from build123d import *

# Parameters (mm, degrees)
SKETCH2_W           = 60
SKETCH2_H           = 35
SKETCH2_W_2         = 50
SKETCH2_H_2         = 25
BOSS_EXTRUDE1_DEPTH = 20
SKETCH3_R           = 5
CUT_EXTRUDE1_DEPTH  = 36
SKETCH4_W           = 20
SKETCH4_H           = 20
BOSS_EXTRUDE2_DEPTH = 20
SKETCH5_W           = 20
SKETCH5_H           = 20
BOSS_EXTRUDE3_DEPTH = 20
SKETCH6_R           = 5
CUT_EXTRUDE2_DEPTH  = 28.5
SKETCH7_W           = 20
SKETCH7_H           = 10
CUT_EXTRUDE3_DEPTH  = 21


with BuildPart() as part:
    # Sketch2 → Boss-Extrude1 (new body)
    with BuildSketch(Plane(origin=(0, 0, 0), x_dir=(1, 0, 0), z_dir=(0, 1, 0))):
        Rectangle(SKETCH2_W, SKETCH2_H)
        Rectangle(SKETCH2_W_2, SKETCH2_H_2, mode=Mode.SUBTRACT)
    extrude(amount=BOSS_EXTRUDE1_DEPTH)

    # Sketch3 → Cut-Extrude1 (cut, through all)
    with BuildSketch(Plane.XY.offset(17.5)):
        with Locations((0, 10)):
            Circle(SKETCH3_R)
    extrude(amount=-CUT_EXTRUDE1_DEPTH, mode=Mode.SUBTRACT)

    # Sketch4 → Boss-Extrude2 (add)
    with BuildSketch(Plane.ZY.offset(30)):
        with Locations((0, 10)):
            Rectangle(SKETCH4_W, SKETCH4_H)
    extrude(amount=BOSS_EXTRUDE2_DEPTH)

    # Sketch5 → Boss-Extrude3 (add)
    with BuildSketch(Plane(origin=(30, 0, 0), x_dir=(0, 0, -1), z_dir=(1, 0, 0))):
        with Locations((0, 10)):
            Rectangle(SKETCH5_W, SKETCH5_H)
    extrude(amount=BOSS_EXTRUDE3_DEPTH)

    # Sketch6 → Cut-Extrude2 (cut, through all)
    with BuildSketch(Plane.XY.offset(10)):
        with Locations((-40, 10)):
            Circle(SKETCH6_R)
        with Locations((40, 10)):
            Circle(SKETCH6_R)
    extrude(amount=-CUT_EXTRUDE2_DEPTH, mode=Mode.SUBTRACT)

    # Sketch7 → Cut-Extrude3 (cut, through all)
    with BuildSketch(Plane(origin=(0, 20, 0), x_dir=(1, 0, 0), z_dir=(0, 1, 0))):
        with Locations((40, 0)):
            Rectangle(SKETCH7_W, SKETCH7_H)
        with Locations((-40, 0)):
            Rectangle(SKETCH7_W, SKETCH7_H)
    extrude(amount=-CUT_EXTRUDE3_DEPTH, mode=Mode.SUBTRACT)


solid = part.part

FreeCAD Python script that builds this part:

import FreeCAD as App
import Part
import Sketcher
Q = App.Units.Quantity


def add_polygon(sketch, points):
    """Adds a closed chain of lines whose ends are joined by coincident constraints."""
    first, n = sketch.GeometryCount, len(points)
    for a, b in zip(points, points[1:] + points[:1]):
        sketch.addGeometry(Part.LineSegment(App.Vector(*a, 0), App.Vector(*b, 0)), False)
    for i in range(n):
        sketch.addConstraint(Sketcher.Constraint("Coincident", first + i, 2, first + (i + 1) % n, 1))

doc = App.newDocument("Part")
params = doc.addObject("Spreadsheet::Sheet", "Params")
for row, (alias, value) in enumerate([
    ("sketch1_width", "60 mm"),
    ("sketch1_width2", "50 mm"),
    ("sketch1_height", "35 mm"),
    ("sketch1_height2", "25 mm"),
    ("pad1_length", "20 mm"),
    ("sketch2_diameter", "10 mm"),
    ("sketch3_width", "20 mm"),
    ("pad2_length", "20 mm"),
    ("sketch4_width", "20 mm"),
    ("pad3_length", "20 mm"),
    ("sketch5_diameter", "10 mm"),
    ("sketch6_width", "20 mm"),
    ("sketch6_height", "10 mm"),
], start=1):
    params.set(f"A{row}", alias)
    params.set(f"B{row}", "=" + value)
    params.setAlias(f"B{row}", alias)

body = doc.addObject("PartDesign::Body", "Body")

# Sketch on XZ plane
sketch1 = body.newObject("Sketcher::SketchObject", "Sketch")
sketch1.AttachmentSupport = (doc.getObject("XZ_Plane"), [""])
sketch1.MapMode = "FlatFace"
add_polygon(sketch1, [(-30, -17.5), (-30, 17.5), (30, 17.5), (30, -17.5)])  # lines 0-3
add_polygon(sketch1, [(25, 12.5), (-25, 12.5), (-25, -12.5), (25, -12.5)])  # lines 4-7
sketch1.addConstraint(Sketcher.Constraint("Vertical", 0))
sketch1.addConstraint(Sketcher.Constraint("Horizontal", 1))
sketch1.addConstraint(Sketcher.Constraint("Vertical", 2))
sketch1.addConstraint(Sketcher.Constraint("Horizontal", 3))
sketch1.addConstraint(Sketcher.Constraint("Horizontal", 4))
sketch1.addConstraint(Sketcher.Constraint("Vertical", 5))
sketch1.addConstraint(Sketcher.Constraint("Horizontal", 6))
sketch1.addConstraint(Sketcher.Constraint("Vertical", 7))
sketch1.addConstraint(Sketcher.Constraint("Symmetric", 0, 2, 2, 2, -1, 1))
sketch1.addConstraint(Sketcher.Constraint("Symmetric", 4, 2, 6, 2, -1, 1))
sketch1.addConstraint(Sketcher.Constraint("DistanceX", 1, 1, 1, 2, Q("60 mm")))
sketch1.addConstraint(Sketcher.Constraint("DistanceX", 4, 2, 4, 1, Q("50 mm")))
sketch1.addConstraint(Sketcher.Constraint("DistanceY", 0, 1, 0, 2, Q("35 mm")))
sketch1.addConstraint(Sketcher.Constraint("DistanceY", 5, 2, 5, 1, Q("25 mm")))
sketch1.setExpression("Constraints[18]", "Params.sketch1_width")
sketch1.setExpression("Constraints[19]", "Params.sketch1_width2")
sketch1.setExpression("Constraints[20]", "Params.sketch1_height")
sketch1.setExpression("Constraints[21]", "Params.sketch1_height2")
pad1 = body.newObject("PartDesign::Pad", "Pad")
pad1.Profile = sketch1
pad1.setExpression("Length", "Params.pad1_length")
pad1.Reversed = True

# Sketch on XY plane
sketch2 = body.newObject("Sketcher::SketchObject", "Sketch001")
sketch2.AttachmentSupport = (doc.getObject("XY_Plane"), [""])
sketch2.MapMode = "FlatFace"
sketch2.AttachmentOffset = App.Placement(App.Vector(0, 0, 17.5), App.Rotation())
sketch2.addGeometry(Part.Circle(App.Vector(0, 10, 0), App.Vector(0, 0, 1), 5), False)
sketch2.addConstraint(Sketcher.Constraint("PointOnObject", 0, 3, -2))
sketch2.addConstraint(Sketcher.Constraint("Diameter", 0, Q("10 mm")))
sketch2.addConstraint(Sketcher.Constraint("DistanceY", -1, 1, 0, 3, Q("10 mm")))
sketch2.setExpression("Constraints[1]", "Params.sketch2_diameter")
pocket1 = body.newObject("PartDesign::Pocket", "Pocket")
pocket1.Profile = sketch2
pocket1.Type = "ThroughAll"

# Sketch on YZ plane
sketch3 = body.newObject("Sketcher::SketchObject", "Sketch002")
sketch3.AttachmentSupport = (doc.getObject("YZ_Plane"), [""])
sketch3.MapMode = "FlatFace"
sketch3.AttachmentOffset = App.Placement(App.Vector(0, 0, -30), App.Rotation())
add_polygon(sketch3, [(20, -10), (0, -10), (0, 10), (20, 10)])  # lines 0-3
sketch3.addConstraint(Sketcher.Constraint("Horizontal", 0))
sketch3.addConstraint(Sketcher.Constraint("Vertical", 1))
sketch3.addConstraint(Sketcher.Constraint("Horizontal", 2))
sketch3.addConstraint(Sketcher.Constraint("Vertical", 3))
sketch3.addConstraint(Sketcher.Constraint("Symmetric", 0, 2, 1, 2, -1, 1))
sketch3.addConstraint(Sketcher.Constraint("Equal", 2, 1))
sketch3.addConstraint(Sketcher.Constraint("DistanceX", 0, 2, 0, 1, Q("20 mm")))
sketch3.setExpression("Constraints[10]", "Params.sketch3_width")
pad2 = body.newObject("PartDesign::Pad", "Pad001")
pad2.Profile = sketch3
pad2.setExpression("Length", "Params.pad2_length")
pad2.Reversed = True

# Sketch on YZ plane
sketch4 = body.newObject("Sketcher::SketchObject", "Sketch003")
sketch4.AttachmentSupport = (doc.getObject("YZ_Plane"), [""])
sketch4.MapMode = "FlatFace"
sketch4.AttachmentOffset = App.Placement(App.Vector(0, 0, 30), App.Rotation())
add_polygon(sketch4, [(20, 10), (0, 10), (0, -10), (20, -10)])  # lines 0-3
sketch4.addConstraint(Sketcher.Constraint("Horizontal", 0))
sketch4.addConstraint(Sketcher.Constraint("Vertical", 1))
sketch4.addConstraint(Sketcher.Constraint("Horizontal", 2))
sketch4.addConstraint(Sketcher.Constraint("Vertical", 3))
sketch4.addConstraint(Sketcher.Constraint("Symmetric", 0, 2, 1, 2, -1, 1))
sketch4.addConstraint(Sketcher.Constraint("Equal", 2, 1))
sketch4.addConstraint(Sketcher.Constraint("DistanceX", 0, 2, 0, 1, Q("20 mm")))
sketch4.setExpression("Constraints[10]", "Params.sketch4_width")
pad3 = body.newObject("PartDesign::Pad", "Pad002")
pad3.Profile = sketch4
pad3.setExpression("Length", "Params.pad3_length")

# Sketch on XY plane
sketch5 = body.newObject("Sketcher::SketchObject", "Sketch004")
sketch5.AttachmentSupport = (doc.getObject("XY_Plane"), [""])
sketch5.MapMode = "FlatFace"
sketch5.AttachmentOffset = App.Placement(App.Vector(0, 0, 10), App.Rotation())
sketch5.addGeometry(Part.Circle(App.Vector(-40, 10, 0), App.Vector(0, 0, 1), 5), False)
sketch5.addGeometry(Part.Circle(App.Vector(40, 10, 0), App.Vector(0, 0, 1), 5), False)
sketch5.addConstraint(Sketcher.Constraint("Equal", 0, 1))
sketch5.addConstraint(Sketcher.Constraint("Symmetric", 0, 3, 1, 3, -2))
sketch5.addConstraint(Sketcher.Constraint("Diameter", 0, Q("10 mm")))
sketch5.addConstraint(Sketcher.Constraint("DistanceX", 0, 3, -1, 1, Q("40 mm")))
sketch5.addConstraint(Sketcher.Constraint("DistanceY", -1, 1, 0, 3, Q("10 mm")))
sketch5.setExpression("Constraints[2]", "Params.sketch5_diameter")
pocket2 = body.newObject("PartDesign::Pocket", "Pocket001")
pocket2.Profile = sketch5
pocket2.Type = "ThroughAll"

# Sketch on XZ plane
sketch6 = body.newObject("Sketcher::SketchObject", "Sketch005")
sketch6.AttachmentSupport = (doc.getObject("XZ_Plane"), [""])
sketch6.MapMode = "FlatFace"
sketch6.AttachmentOffset = App.Placement(App.Vector(0, 0, -20), App.Rotation())
add_polygon(sketch6, [(30, -5), (30, 5), (50, 5), (50, -5)])  # lines 0-3
add_polygon(sketch6, [(-50, -5), (-50, 5), (-30, 5), (-30, -5)])  # lines 4-7
sketch6.addConstraint(Sketcher.Constraint("Vertical", 0))
sketch6.addConstraint(Sketcher.Constraint("Horizontal", 1))
sketch6.addConstraint(Sketcher.Constraint("Vertical", 2))
sketch6.addConstraint(Sketcher.Constraint("Horizontal", 3))
sketch6.addConstraint(Sketcher.Constraint("Vertical", 4))
sketch6.addConstraint(Sketcher.Constraint("Horizontal", 5))
sketch6.addConstraint(Sketcher.Constraint("Vertical", 6))
sketch6.addConstraint(Sketcher.Constraint("Horizontal", 7))
sketch6.addConstraint(Sketcher.Constraint("Symmetric", 2, 2, 4, 2, -1, 1))
sketch6.addConstraint(Sketcher.Constraint("Symmetric", 0, 2, 6, 2, -1, 1))
sketch6.addConstraint(Sketcher.Constraint("Horizontal", 1, 2, 4, 2))
sketch6.addConstraint(Sketcher.Constraint("DistanceX", 1, 1, 1, 2, Q("20 mm")))
sketch6.addConstraint(Sketcher.Constraint("DistanceY", 0, 1, 0, 2, Q("10 mm")))
sketch6.addConstraint(Sketcher.Constraint("DistanceX", -1, 1, 0, 2, Q("30 mm")))
sketch6.setExpression("Constraints[19]", "Params.sketch6_width")
sketch6.setExpression("Constraints[20]", "Params.sketch6_height")
pocket3 = body.newObject("PartDesign::Pocket", "Pocket002")
pocket3.Profile = sketch6
pocket3.Type = "ThroughAll"
pocket3.Reversed = True

doc.recompute()
